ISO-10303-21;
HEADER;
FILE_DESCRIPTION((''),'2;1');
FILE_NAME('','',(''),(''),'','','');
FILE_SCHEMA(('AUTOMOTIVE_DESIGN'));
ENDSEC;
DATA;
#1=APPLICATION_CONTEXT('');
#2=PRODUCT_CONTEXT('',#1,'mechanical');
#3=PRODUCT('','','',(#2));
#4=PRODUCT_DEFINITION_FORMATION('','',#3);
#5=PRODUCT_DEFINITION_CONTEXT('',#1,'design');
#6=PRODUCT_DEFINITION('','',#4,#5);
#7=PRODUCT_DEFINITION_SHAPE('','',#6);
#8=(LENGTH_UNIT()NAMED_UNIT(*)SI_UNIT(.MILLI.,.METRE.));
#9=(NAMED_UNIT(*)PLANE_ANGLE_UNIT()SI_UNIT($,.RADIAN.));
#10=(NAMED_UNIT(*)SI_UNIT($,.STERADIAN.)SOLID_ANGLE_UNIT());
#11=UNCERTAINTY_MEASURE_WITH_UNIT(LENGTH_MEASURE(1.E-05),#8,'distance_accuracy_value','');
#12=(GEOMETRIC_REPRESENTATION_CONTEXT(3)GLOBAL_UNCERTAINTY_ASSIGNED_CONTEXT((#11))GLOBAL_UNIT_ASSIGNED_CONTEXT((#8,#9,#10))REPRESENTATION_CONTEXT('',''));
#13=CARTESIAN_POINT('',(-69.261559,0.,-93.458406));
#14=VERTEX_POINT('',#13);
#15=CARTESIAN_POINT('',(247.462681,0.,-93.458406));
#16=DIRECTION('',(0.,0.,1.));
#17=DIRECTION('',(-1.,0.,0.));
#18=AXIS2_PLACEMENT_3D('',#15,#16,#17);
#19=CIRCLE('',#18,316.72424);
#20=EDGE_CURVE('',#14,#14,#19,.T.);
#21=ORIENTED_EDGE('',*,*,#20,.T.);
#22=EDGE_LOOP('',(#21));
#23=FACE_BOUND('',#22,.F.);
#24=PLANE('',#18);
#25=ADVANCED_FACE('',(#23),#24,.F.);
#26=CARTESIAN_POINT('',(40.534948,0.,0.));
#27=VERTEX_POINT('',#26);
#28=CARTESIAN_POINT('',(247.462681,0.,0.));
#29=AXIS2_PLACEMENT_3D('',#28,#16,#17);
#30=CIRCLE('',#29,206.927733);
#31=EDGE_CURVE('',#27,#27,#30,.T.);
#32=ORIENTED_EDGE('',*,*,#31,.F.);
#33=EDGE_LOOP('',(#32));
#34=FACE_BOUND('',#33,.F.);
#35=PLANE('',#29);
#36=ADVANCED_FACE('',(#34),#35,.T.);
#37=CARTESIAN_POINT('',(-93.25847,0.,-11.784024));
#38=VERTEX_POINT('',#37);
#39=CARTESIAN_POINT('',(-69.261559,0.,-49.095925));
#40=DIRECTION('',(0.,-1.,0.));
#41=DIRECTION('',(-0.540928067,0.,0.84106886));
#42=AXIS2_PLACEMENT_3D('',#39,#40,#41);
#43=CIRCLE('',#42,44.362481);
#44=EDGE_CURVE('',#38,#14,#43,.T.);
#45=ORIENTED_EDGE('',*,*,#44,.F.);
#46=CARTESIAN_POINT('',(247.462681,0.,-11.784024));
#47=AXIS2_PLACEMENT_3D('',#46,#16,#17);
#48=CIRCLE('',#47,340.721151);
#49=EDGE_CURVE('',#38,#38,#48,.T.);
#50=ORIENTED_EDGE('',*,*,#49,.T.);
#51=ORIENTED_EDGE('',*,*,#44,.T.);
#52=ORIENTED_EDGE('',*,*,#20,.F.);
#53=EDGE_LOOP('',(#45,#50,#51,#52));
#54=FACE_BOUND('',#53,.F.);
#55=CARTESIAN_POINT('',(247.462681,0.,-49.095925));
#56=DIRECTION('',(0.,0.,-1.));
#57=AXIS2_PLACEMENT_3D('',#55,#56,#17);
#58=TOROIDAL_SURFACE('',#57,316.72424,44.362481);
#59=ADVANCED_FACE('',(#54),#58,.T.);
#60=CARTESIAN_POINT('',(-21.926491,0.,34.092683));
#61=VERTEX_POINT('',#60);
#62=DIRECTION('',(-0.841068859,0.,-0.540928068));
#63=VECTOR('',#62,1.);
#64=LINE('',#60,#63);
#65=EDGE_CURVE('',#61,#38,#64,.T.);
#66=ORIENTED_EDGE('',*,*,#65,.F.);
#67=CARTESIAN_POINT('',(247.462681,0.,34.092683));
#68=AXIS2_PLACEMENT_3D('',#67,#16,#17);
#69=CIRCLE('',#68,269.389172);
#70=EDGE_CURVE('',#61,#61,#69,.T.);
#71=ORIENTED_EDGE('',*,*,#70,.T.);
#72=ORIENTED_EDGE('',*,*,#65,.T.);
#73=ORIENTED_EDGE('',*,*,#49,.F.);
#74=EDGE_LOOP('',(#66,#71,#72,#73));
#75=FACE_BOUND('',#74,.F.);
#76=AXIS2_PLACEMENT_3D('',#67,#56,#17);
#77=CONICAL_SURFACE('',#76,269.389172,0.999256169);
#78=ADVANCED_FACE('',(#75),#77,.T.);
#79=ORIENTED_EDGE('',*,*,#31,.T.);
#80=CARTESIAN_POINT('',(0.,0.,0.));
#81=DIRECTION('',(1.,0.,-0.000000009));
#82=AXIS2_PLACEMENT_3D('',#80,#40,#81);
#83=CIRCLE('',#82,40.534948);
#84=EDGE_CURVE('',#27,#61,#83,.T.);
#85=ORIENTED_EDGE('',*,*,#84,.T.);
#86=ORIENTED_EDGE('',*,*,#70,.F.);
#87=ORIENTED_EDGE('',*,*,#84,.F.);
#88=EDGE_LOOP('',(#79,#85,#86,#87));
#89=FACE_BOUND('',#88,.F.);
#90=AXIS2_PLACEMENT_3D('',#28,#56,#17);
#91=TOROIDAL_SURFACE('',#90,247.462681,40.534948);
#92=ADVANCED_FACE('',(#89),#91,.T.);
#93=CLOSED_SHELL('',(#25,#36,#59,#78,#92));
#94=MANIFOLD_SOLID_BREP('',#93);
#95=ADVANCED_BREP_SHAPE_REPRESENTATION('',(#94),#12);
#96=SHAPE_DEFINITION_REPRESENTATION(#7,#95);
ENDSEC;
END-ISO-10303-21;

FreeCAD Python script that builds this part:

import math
import FreeCAD as App
import Part
import Sketcher
from FreeCAD import Vector

doc = App.newDocument("Part")
body = doc.addObject("PartDesign::Body", "Body")

# Sketch on XZ plane
sketch1 = body.newObject("Sketcher::SketchObject", "Sketch")
sketch1.AttachmentSupport = (doc.getObject("XZ_Plane"), [""])
sketch1.MapMode = "FlatFace"
sketch1.addGeometry([
    Part.LineSegment(Vector(247, 0, 0), Vector(41, 0, 0)),  # 0
    Part.ArcOfCircle(Part.Circle(Vector(0, 0, 0), Vector(0, 0, 1), 41), math.radians(0), math.radians(123)),  # 1
    Part.LineSegment(Vector(-22, 34, 0), Vector(-93, -12, 0)),  # 2
    Part.ArcOfCircle(Part.Circle(Vector(-69, -49, 0), Vector(0, 0, 1), 44), math.radians(123), math.radians(270)),  # 3
    Part.LineSegment(Vector(-69, -93, 0), Vector(247, -93, 0)),  # 4
    Part.LineSegment(Vector(247, -93, 0), Vector(247, 0, 0)),  # 5
], False)
sketch1.addGeometry(Part.LineSegment(Vector(247, -93, 0), Vector(247, 34, 0)), True)  # axis
sketch1.addConstraint([
    Sketcher.Constraint("Coincident", 0, 2, 1, 1),
    Sketcher.Constraint("Tangent", 1, 2, 2, 1),
    Sketcher.Constraint("Tangent", 2, 2, 3, 1),
    Sketcher.Constraint("Tangent", 3, 2, 4, 1),
    Sketcher.Constraint("Coincident", 4, 2, 5, 1),
    Sketcher.Constraint("Coincident", 5, 2, 0, 1),
    Sketcher.Constraint("Horizontal", 0),
    Sketcher.Constraint("Horizontal", 4),
    Sketcher.Constraint("Vertical", 5),
    Sketcher.Constraint("Vertical", 6),
    Sketcher.Constraint("Coincident", 1, 3, -1, 1),
    Sketcher.Constraint("Coincident", 6, 1, 4, 2),
    Sketcher.Constraint("PointOnObject", 0, 2, -1),
    Sketcher.Constraint("Horizontal", 1, 2, 6, 2),
    Sketcher.Constraint("Radius", 1, 40.534948),
    Sketcher.Constraint("Radius", 3, 44.362481),
    Sketcher.Constraint("DistanceX", 4, 1, 4, 2, 316.72424),
    Sketcher.Constraint("DistanceY", 6, 1, 6, 2, 127.551089),
    Sketcher.Constraint("DistanceY", 3, 3, 2, 2, 37.311901),
])
revolution = body.newObject("PartDesign::Revolution", "Revolution")
revolution.Profile = sketch1
revolution.ReferenceAxis = (sketch1, ["Axis0"])
revolution.Angle = 360

doc.recompute()
